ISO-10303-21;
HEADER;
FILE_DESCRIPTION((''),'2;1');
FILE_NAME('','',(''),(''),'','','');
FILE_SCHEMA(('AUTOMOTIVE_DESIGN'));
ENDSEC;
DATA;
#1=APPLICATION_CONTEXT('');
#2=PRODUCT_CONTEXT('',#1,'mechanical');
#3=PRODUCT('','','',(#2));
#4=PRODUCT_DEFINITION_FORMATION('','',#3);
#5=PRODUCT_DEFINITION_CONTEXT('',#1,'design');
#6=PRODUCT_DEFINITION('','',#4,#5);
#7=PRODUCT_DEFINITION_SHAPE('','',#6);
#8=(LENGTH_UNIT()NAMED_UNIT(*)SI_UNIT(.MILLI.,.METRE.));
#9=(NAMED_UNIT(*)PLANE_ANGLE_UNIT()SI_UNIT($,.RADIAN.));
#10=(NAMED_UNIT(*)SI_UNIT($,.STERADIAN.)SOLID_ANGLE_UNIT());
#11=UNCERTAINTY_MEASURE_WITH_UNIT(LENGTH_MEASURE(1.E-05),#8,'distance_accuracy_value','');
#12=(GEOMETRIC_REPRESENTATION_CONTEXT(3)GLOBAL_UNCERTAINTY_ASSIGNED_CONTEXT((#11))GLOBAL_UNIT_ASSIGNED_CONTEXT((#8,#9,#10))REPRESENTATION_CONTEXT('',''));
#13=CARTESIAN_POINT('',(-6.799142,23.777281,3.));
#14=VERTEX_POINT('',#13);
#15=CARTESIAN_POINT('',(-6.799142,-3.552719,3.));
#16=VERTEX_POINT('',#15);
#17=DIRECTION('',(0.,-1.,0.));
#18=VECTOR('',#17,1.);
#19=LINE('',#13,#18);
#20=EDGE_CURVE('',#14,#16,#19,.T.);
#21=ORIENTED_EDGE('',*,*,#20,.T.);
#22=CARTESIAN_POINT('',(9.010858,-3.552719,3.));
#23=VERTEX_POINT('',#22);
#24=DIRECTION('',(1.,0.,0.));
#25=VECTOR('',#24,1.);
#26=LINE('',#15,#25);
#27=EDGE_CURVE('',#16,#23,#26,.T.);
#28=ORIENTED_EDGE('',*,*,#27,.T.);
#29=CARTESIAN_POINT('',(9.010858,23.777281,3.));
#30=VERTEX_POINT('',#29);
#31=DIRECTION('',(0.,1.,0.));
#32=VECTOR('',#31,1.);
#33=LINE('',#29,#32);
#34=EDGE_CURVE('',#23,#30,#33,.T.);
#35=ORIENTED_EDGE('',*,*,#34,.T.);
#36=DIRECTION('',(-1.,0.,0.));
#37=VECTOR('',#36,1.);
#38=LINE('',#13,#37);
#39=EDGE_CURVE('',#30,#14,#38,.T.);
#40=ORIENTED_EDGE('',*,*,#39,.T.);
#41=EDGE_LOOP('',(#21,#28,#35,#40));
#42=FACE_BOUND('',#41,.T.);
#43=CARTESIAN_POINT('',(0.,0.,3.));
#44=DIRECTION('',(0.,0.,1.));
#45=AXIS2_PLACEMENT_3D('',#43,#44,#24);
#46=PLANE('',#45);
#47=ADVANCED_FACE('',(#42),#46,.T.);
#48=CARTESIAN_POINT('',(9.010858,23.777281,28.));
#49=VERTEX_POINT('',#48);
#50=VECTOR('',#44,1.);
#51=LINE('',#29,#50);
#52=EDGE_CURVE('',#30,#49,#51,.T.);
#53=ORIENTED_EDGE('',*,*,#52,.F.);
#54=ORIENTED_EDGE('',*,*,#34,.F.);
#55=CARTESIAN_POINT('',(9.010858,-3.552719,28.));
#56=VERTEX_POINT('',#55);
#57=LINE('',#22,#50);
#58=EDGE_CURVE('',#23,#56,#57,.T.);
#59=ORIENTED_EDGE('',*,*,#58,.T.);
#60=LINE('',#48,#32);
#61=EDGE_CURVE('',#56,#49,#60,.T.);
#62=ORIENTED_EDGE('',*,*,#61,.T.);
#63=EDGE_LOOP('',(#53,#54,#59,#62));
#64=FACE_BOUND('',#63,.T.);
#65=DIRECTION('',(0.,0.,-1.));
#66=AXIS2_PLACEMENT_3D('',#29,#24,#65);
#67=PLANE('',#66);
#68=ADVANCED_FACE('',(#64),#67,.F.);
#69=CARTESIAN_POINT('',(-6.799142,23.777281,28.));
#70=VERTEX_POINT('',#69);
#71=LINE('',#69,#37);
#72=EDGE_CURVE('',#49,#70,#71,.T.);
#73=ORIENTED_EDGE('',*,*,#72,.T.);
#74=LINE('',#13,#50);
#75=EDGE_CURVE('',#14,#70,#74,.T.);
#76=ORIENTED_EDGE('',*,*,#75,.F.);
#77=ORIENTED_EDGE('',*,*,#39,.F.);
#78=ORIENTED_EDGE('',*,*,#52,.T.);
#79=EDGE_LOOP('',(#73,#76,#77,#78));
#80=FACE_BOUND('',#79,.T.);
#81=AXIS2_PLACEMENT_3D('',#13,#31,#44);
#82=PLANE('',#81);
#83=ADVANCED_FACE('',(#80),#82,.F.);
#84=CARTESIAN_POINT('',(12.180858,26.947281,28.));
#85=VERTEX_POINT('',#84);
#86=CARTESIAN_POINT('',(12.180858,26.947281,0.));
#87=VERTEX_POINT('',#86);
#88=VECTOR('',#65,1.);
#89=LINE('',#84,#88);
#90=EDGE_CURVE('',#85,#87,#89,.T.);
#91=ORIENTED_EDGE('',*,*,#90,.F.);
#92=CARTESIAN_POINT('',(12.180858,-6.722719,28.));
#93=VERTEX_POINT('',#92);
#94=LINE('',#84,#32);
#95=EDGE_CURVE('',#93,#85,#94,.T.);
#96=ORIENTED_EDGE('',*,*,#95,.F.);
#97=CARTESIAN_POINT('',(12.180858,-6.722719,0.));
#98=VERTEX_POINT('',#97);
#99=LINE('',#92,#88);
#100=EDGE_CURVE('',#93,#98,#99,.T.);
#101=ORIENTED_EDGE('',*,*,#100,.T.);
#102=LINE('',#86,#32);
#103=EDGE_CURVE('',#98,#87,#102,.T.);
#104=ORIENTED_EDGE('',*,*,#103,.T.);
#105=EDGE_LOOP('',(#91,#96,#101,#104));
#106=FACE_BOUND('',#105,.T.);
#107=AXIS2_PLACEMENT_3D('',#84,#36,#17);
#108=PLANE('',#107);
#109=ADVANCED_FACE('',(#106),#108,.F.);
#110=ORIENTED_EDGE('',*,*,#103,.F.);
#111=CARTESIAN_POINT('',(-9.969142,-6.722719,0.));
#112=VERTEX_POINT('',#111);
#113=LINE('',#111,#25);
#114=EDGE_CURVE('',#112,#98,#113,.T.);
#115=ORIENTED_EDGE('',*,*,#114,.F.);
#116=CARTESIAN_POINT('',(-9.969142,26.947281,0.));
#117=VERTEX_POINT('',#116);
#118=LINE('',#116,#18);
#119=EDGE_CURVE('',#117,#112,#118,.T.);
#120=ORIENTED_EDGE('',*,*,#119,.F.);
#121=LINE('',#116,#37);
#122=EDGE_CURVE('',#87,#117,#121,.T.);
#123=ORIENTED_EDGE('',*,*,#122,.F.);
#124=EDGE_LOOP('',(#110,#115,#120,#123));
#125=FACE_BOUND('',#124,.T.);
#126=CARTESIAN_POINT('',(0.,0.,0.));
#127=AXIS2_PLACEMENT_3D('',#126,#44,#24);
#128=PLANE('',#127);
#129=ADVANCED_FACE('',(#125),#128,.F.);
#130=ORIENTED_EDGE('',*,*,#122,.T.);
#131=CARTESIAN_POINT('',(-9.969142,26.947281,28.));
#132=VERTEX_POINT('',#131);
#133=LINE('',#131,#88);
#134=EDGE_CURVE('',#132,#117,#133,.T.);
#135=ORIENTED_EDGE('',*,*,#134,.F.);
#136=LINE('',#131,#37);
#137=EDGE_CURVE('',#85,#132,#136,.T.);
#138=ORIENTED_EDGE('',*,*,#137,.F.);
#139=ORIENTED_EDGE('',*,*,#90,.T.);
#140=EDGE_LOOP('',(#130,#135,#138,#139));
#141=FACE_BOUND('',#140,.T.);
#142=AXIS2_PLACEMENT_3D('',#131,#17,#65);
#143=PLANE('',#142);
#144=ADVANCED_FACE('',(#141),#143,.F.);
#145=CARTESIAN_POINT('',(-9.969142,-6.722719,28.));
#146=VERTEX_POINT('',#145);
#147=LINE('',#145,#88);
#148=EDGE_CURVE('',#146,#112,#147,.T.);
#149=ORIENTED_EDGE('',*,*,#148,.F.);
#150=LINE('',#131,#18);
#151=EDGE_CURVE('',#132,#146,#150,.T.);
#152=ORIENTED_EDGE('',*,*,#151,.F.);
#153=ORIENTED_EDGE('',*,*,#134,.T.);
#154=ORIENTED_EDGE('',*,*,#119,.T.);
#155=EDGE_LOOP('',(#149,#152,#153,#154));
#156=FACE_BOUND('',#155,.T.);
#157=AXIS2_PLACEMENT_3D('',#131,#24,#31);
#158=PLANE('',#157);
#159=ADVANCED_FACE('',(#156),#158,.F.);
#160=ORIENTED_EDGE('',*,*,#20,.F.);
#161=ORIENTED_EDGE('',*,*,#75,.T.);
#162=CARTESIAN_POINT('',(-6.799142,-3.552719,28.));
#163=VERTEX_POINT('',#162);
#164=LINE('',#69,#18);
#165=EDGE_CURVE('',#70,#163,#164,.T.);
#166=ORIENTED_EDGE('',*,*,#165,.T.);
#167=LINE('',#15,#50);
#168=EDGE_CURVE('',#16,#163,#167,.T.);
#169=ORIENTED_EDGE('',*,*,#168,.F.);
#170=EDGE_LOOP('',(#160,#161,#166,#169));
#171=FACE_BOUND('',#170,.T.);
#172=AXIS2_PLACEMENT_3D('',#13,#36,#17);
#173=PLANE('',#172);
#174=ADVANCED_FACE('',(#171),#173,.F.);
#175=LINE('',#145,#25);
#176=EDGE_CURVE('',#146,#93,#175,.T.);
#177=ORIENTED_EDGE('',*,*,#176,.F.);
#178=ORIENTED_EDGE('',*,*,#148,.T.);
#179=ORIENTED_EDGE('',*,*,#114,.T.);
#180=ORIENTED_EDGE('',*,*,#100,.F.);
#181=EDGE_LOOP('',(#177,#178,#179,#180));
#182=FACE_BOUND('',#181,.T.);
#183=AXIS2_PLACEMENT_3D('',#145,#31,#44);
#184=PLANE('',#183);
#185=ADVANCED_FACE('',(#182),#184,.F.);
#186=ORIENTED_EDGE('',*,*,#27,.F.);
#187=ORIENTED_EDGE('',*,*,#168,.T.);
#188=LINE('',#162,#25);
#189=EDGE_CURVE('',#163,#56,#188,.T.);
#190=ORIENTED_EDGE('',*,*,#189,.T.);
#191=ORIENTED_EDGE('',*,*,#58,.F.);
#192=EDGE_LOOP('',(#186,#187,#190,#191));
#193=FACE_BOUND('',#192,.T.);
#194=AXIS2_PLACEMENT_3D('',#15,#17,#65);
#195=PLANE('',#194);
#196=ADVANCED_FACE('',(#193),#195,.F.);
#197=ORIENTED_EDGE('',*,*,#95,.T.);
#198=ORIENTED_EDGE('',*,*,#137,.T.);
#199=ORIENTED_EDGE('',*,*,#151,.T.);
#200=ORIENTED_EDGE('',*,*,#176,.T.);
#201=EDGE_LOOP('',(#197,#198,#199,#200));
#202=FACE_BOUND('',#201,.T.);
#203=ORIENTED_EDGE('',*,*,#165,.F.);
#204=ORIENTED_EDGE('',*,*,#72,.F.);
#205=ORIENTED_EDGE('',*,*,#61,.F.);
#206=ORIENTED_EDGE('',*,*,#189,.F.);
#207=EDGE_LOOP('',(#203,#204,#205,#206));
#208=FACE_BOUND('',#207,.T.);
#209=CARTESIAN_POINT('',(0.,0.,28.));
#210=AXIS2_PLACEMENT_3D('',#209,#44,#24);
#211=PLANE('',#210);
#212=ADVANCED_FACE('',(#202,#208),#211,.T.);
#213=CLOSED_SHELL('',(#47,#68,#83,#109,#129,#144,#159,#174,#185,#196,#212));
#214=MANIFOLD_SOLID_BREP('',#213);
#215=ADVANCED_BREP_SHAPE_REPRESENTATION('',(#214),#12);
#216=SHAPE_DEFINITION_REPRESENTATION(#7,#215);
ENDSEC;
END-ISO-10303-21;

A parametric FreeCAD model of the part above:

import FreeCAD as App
import Part
import Sketcher
from FreeCAD import Vector


def add_polygon(sketch, points):
    """Adds a closed chain of lines whose ends are joined by coincident constraints."""
    first, n = sketch.GeometryCount, len(points)
    for a, b in zip(points, points[1:] + points[:1]):
        sketch.addGeometry(Part.LineSegment(App.Vector(*a, 0), App.Vector(*b, 0)), False)
    for i in range(n):
        sketch.addConstraint(Sketcher.Constraint("Coincident", first + i, 2, first + (i + 1) % n, 1))

doc = App.newDocument("Part")
params = doc.addObject("Spreadsheet::Sheet", "Params")
for row, (alias, value) in enumerate([
    ("sketch1_width", "22.15 mm"),
    ("sketch1_height", "33.67 mm"),
    ("pad1_length", "28 mm"),
    ("sketch2_width", "15.81 mm"),
    ("sketch2_height", "27.33 mm"),
    ("pocket1_length", "25 mm"),
], start=1):
    params.set(f"A{row}", alias)
    params.set(f"B{row}", "=" + value)
    params.setAlias(f"B{row}", alias)

body = doc.addObject("PartDesign::Body", "Body")

# Sketch on XY plane
sketch1 = body.newObject("Sketcher::SketchObject", "Sketch")
sketch1.AttachmentSupport = (doc.getObject("XY_Plane"), [""])
sketch1.MapMode = "FlatFace"
add_polygon(sketch1, [(-10, 27), (-10, -7), (12, -7), (12, 27)])  # lines 0-3
sketch1.addConstraint([
    Sketcher.Constraint("Vertical", 0),
    Sketcher.Constraint("Horizontal", 1),
    Sketcher.Constraint("Vertical", 2),
    Sketcher.Constraint("Horizontal", 3),
    Sketcher.Constraint("DistanceX", 1, 1, 1, 2, 22.15),
    Sketcher.Constraint("DistanceY", 0, 2, 0, 1, 33.67),
    Sketcher.Constraint("DistanceY", 0, 2, -1, 1, 6.722719),
    Sketcher.Constraint("DistanceX", 0, 2, -1, 1, 9.969142),
])
sketch1.setExpression("Constraints[8]", "Params.sketch1_width")
sketch1.setExpression("Constraints[9]", "Params.sketch1_height")
pad1 = body.newObject("PartDesign::Pad", "Pad")
pad1.Profile = sketch1
pad1.setExpression("Length", "Params.pad1_length")

# Sketch on XY plane
sketch2 = body.newObject("Sketcher::SketchObject", "Sketch001")
sketch2.AttachmentSupport = (doc.getObject("XY_Plane"), [""])
sketch2.MapMode = "FlatFace"
sketch2.AttachmentOffset = App.Placement(Vector(0, 0, 28), App.Rotation())
add_polygon(sketch2, [(-7, 24), (-7, -4), (9, -4), (9, 24)])  # lines 0-3
sketch2.addConstraint([
    Sketcher.Constraint("Vertical", 0),
    Sketcher.Constraint("Horizontal", 1),
    Sketcher.Constraint("Vertical", 2),
    Sketcher.Constraint("Horizontal", 3),
    Sketcher.Constraint("DistanceX", 1, 1, 1, 2, 15.81),
    Sketcher.Constraint("DistanceY", 0, 2, 0, 1, 27.33),
    Sketcher.Constraint("DistanceY", 0, 2, -1, 1, 3.552719),
    Sketcher.Constraint("DistanceX", 0, 2, -1, 1, 6.799142),
])
sketch2.setExpression("Constraints[8]", "Params.sketch2_width")
sketch2.setExpression("Constraints[9]", "Params.sketch2_height")
pocket1 = body.newObject("PartDesign::Pocket", "Pocket")
pocket1.Profile = sketch2
pocket1.setExpression("Length", "Params.pocket1_length")

doc.recompute()
